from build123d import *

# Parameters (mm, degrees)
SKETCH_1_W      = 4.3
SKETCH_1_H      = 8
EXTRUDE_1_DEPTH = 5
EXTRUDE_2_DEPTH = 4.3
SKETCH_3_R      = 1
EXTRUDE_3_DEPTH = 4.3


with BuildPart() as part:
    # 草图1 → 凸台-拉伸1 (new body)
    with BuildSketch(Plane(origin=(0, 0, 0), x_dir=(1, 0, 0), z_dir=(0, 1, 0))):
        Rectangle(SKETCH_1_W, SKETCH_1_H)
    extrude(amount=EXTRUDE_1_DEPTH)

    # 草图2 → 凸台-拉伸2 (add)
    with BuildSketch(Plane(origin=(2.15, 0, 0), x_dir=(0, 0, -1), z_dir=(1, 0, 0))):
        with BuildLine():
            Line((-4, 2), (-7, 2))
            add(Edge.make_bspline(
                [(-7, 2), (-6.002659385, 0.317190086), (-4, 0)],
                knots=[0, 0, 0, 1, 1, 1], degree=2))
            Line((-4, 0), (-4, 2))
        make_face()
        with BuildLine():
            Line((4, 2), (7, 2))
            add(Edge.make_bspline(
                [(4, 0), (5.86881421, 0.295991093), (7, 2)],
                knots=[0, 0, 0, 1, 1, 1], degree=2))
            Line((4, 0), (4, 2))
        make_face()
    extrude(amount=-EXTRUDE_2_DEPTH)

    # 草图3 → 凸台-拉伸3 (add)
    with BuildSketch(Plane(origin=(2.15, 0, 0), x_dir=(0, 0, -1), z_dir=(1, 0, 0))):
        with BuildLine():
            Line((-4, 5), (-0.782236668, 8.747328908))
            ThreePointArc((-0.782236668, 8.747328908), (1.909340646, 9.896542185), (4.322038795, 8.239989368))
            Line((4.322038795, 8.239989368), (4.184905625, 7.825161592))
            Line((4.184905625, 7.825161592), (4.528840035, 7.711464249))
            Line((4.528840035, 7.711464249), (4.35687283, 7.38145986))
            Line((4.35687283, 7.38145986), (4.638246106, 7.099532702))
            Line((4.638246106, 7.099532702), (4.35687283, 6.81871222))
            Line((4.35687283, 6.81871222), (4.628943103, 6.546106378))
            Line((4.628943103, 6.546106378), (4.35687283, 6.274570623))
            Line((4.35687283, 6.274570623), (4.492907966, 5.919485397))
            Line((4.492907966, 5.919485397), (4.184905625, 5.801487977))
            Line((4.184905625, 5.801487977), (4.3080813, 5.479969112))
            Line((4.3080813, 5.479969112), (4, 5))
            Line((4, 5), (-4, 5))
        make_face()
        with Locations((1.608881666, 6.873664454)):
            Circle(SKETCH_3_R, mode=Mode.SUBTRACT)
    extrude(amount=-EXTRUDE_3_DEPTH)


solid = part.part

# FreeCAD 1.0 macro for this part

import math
import FreeCAD as App
import Part
import Sketcher
Q = App.Units.Quantity

doc = App.newDocument("Part")
body = doc.addObject("PartDesign::Body", "Body")

sketch1 = doc.addObject("Sketcher::SketchObject", "Sketch")
body.addObject(sketch1)
sketch1.AttachmentSupport = (doc.XZ_Plane, [""])
sketch1.MapMode = "FlatFace"
sketch1.addGeometry(Part.LineSegment(App.Vector(-2.1, -4, 0), App.Vector(-2.1, 4, 0)), False)
sketch1.addGeometry(Part.LineSegment(App.Vector(-2.1, 4, 0), App.Vector(2.1, 4, 0)), False)
sketch1.addGeometry(Part.LineSegment(App.Vector(2.1, 4, 0), App.Vector(2.1, -4, 0)), False)
sketch1.addGeometry(Part.LineSegment(App.Vector(2.1, -4, 0), App.Vector(-2.1, -4, 0)), False)
sketch1.addConstraint(Sketcher.Constraint("Coincident", 0, 2, 1, 1))
sketch1.addConstraint(Sketcher.Constraint("Coincident", 1, 2, 2, 1))
sketch1.addConstraint(Sketcher.Constraint("Coincident", 2, 2, 3, 1))
sketch1.addConstraint(Sketcher.Constraint("Coincident", 3, 2, 0, 1))
sketch1.addConstraint(Sketcher.Constraint("Vertical", 0))
sketch1.addConstraint(Sketcher.Constraint("Horizontal", 1))
sketch1.addConstraint(Sketcher.Constraint("Vertical", 2))
sketch1.addConstraint(Sketcher.Constraint("Horizontal", 3))
sketch1.addConstraint(Sketcher.Constraint("Symmetric", 0, 2, 2, 2, -1, 1))
sketch1.addConstraint(Sketcher.Constraint("DistanceY", 0, 1, 0, 2, Q("8 mm")))
sketch1.addConstraint(Sketcher.Constraint("DistanceX", 1, 1, 1, 2, Q("4.3 mm")))
pad1 = doc.addObject("PartDesign::Pad", "Pad")
body.addObject(pad1)
pad1.Profile = sketch1
pad1.Length = 5
pad1.Reversed = True

sketch2 = doc.addObject("Sketcher::SketchObject", "Sketch001")
body.addObject(sketch2)
sketch2.AttachmentSupport = (doc.YZ_Plane, [""])
sketch2.MapMode = "FlatFace"
sketch2.AttachmentOffset = App.Placement(App.Vector(0, 0, 2.15), App.Rotation())
sketch2.addGeometry(Part.LineSegment(App.Vector(2, 4, 0), App.Vector(2, 7, 0)), False)
sketch2.addGeometry(Part.BSplineCurve([App.Vector(2, 7, 0), App.Vector(0.31719, 6.002659, 0), App.Vector(0, 4, 0)], [3, 3], [0, 1], False, 2, [1, 1, 1], False), False)
sketch2.addGeometry(Part.LineSegment(App.Vector(0, 4, 0), App.Vector(2, 4, 0)), False)
sketch2.addGeometry(Part.LineSegment(App.Vector(2, -7, 0), App.Vector(2, -4, 0)), False)
sketch2.addGeometry(Part.LineSegment(App.Vector(2, -4, 0), App.Vector(0, -4, 0)), False)
sketch2.addGeometry(Part.BSplineCurve([App.Vector(0, -4, 0), App.Vector(0.295991, -5.868814, 0), App.Vector(2, -7, 0)], [3, 3], [0, 1], False, 2, [1, 1, 1], False), False)
sketch2.addConstraint(Sketcher.Constraint("Block", 1))
sketch2.addConstraint(Sketcher.Constraint("Block", 5))
sketch2.addConstraint(Sketcher.Constraint("Coincident", 0, 2, 1, 1))
sketch2.addConstraint(Sketcher.Constraint("Coincident", 1, 2, 2, 1))
sketch2.addConstraint(Sketcher.Constraint("Coincident", 2, 2, 0, 1))
sketch2.addConstraint(Sketcher.Constraint("Coincident", 3, 2, 4, 1))
sketch2.addConstraint(Sketcher.Constraint("Coincident", 4, 2, 5, 1))
sketch2.addConstraint(Sketcher.Constraint("Coincident", 5, 2, 3, 1))
sketch2.addConstraint(Sketcher.Constraint("Vertical", 0))
sketch2.addConstraint(Sketcher.Constraint("Horizontal", 2))
sketch2.addConstraint(Sketcher.Constraint("Vertical", 3))
sketch2.addConstraint(Sketcher.Constraint("Horizontal", 4))
pad2 = doc.addObject("PartDesign::Pad", "Pad001")
body.addObject(pad2)
pad2.Profile = sketch2
pad2.Length = 4.3
pad2.Reversed = True

sketch3 = doc.addObject("Sketcher::SketchObject", "Sketch002")
body.addObject(sketch3)
sketch3.AttachmentSupport = (doc.YZ_Plane, [""])
sketch3.MapMode = "FlatFace"
sketch3.AttachmentOffset = App.Placement(App.Vector(0, 0, 2.15), App.Rotation())
sketch3.addGeometry(Part.LineSegment(App.Vector(8.75, 0.78, 0), App.Vector(5, 4, 0)), False)
sketch3.addGeometry(Part.LineSegment(App.Vector(5, 4, 0), App.Vector(5, -4, 0)), False)
sketch3.addGeometry(Part.LineSegment(App.Vector(5, -4, 0), App.Vector(5.48, -4.31, 0)), False)
sketch3.addGeometry(Part.LineSegment(App.Vector(5.48, -4.31, 0), App.Vector(5.8, -4.18, 0)), False)
sketch3.addGeometry(Part.LineSegment(App.Vector(5.8, -4.18, 0), App.Vector(5.92, -4.49, 0)), False)
sketch3.addGeometry(Part.LineSegment(App.Vector(5.92, -4.49, 0), App.Vector(6.27, -4.36, 0)), False)
sketch3.addGeometry(Part.LineSegment(App.Vector(6.27, -4.36, 0), App.Vector(6.55, -4.63, 0)), False)
sketch3.addGeometry(Part.LineSegment(App.Vector(6.55, -4.63, 0), App.Vector(6.82, -4.36, 0)), False)
sketch3.addGeometry(Part.LineSegment(App.Vector(6.82, -4.36, 0), App.Vector(7.1, -4.64, 0)), False)
sketch3.addGeometry(Part.LineSegment(App.Vector(7.1, -4.64, 0), App.Vector(7.38, -4.36, 0)), False)
sketch3.addGeometry(Part.LineSegment(App.Vector(7.38, -4.36, 0), App.Vector(7.71, -4.53, 0)), False)
sketch3.addGeometry(Part.LineSegment(App.Vector(7.71, -4.53, 0), App.Vector(7.83, -4.18, 0)), False)
sketch3.addGeometry(Part.LineSegment(App.Vector(7.83, -4.18, 0), App.Vector(8.24, -4.32, 0)), False)
sketch3.addGeometry(Part.ArcOfCircle(Part.Circle(App.Vector(6.87, -1.61, 0), App.Vector(0, 0, 1), 3.04), math.radians(-63), math.radians(52)), False)
sketch3.addGeometry(Part.Circle(App.Vector(6.87, -1.61, 0), App.Vector(0, 0, 1), 1), False)
sketch3.addConstraint(Sketcher.Constraint("Coincident", 0, 2, 1, 1))
sketch3.addConstraint(Sketcher.Constraint("Coincident", 1, 2, 2, 1))
sketch3.addConstraint(Sketcher.Constraint("Coincident", 2, 2, 3, 1))
sketch3.addConstraint(Sketcher.Constraint("Coincident", 3, 2, 4, 1))
sketch3.addConstraint(Sketcher.Constraint("Coincident", 4, 2, 5, 1))
sketch3.addConstraint(Sketcher.Constraint("Coincident", 5, 2, 6, 1))
sketch3.addConstraint(Sketcher.Constraint("Coincident", 6, 2, 7, 1))
sketch3.addConstraint(Sketcher.Constraint("Coincident", 7, 2, 8, 1))
sketch3.addConstraint(Sketcher.Constraint("Coincident", 8, 2, 9, 1))
sketch3.addConstraint(Sketcher.Constraint("Coincident", 9, 2, 10, 1))
sketch3.addConstraint(Sketcher.Constraint("Coincident", 10, 2, 11, 1))
sketch3.addConstraint(Sketcher.Constraint("Coincident", 11, 2, 12, 1))
sketch3.addConstraint(Sketcher.Constraint("Coincident", 12, 2, 13, 1))
sketch3.addConstraint(Sketcher.Constraint("Coincident", 13, 2, 0, 1))
sketch3.addConstraint(Sketcher.Constraint("Vertical", 1))
sketch3.addConstraint(Sketcher.Constraint("Coincident", 14, 3, 13, 3))
sketch3.addConstraint(Sketcher.Constraint("Perpendicular", 3, 4))
sketch3.addConstraint(Sketcher.Constraint("Perpendicular", 4, 5))
sketch3.addConstraint(Sketcher.Constraint("Perpendicular", 6, 7))
sketch3.addConstraint(Sketcher.Constraint("Perpendicular", 7, 8))
sketch3.addConstraint(Sketcher.Constraint("Perpendicular", 8, 9))
sketch3.addConstraint(Sketcher.Constraint("Perpendicular", 11, 12))
sketch3.addConstraint(Sketcher.Constraint("Horizontal", 5, 2, 7, 2))
sketch3.addConstraint(Sketcher.Constraint("Horizontal", 7, 2, 9, 2))
sketch3.addConstraint(Sketcher.Constraint("Horizontal", 3, 2, 11, 2))
sketch3.addConstraint(Sketcher.Constraint("Diameter", 14, Q("2 mm")))
sketch3.addConstraint(Sketcher.Constraint("DistanceY", 1, 2, 1, 1, Q("8 mm")))
sketch3.addConstraint(Sketcher.Constraint("DistanceX", -1, 1, 0, 2, Q("5 mm")))
sketch3.addConstraint(Sketcher.Constraint("DistanceY", -1, 1, 0, 2, Q("4 mm")))
sketch3.addConstraint(Sketcher.Constraint("Radius", 13, Q("3.037773 mm")))
sketch3.addConstraint(Sketcher.Constraint("DistanceY", 2, 2, 13, 3, Q("2.6992 mm")))
sketch3.addConstraint(Sketcher.Constraint("DistanceX", 2, 2, 5, 2, Q("0.794602 mm")))
sketch3.addConstraint(Sketcher.Constraint("DistanceX", 9, 2, 11, 2, Q("0.443702 mm")))
sketch3.addConstraint(Sketcher.Constraint("DistanceY", 10, 2, 12, 2, Q("0.206801 mm")))
sketch3.addConstraint(Sketcher.Constraint("Distance", 0, Q("4.939279 mm")))
sketch3.addConstraint(Sketcher.Constraint("Distance", 4, Q("0.329832 mm")))
sketch3.addConstraint(Sketcher.Constraint("Distance", 5, Q("0.380251 mm")))
sketch3.addConstraint(Sketcher.Constraint("Distance", 8, Q("0.397531 mm")))
sketch3.addConstraint(Sketcher.Constraint("Distance", 11, Q("0.36224 mm")))
sketch3.addConstraint(Sketcher.Constraint("DistanceY", 13, 3, -1, 1, Q("1.608882 mm")))
sketch3.addConstraint(Sketcher.Constraint("DistanceX", -1, 1, 2, 2, Q("5.479969 mm")))
sketch3.addConstraint(Sketcher.Constraint("DistanceX", -1, 1, 9, 2, Q("7.38146 mm")))
sketch3.addConstraint(Sketcher.Constraint("DistanceY", 10, 2, -1, 1, Q("4.52884 mm")))
sketch3.addConstraint(Sketcher.Constraint("DistanceX", -1, 1, 12, 2, Q("8.239989 mm")))
sketch3.addConstraint(Sketcher.Constraint("DistanceY", 6, 2, 5, 2, Q("0.27207 mm")))
pad3 = doc.addObject("PartDesign::Pad", "Pad002")
body.addObject(pad3)
pad3.Profile = sketch3
pad3.Length = 4.3
pad3.Reversed = True

doc.recompute()
